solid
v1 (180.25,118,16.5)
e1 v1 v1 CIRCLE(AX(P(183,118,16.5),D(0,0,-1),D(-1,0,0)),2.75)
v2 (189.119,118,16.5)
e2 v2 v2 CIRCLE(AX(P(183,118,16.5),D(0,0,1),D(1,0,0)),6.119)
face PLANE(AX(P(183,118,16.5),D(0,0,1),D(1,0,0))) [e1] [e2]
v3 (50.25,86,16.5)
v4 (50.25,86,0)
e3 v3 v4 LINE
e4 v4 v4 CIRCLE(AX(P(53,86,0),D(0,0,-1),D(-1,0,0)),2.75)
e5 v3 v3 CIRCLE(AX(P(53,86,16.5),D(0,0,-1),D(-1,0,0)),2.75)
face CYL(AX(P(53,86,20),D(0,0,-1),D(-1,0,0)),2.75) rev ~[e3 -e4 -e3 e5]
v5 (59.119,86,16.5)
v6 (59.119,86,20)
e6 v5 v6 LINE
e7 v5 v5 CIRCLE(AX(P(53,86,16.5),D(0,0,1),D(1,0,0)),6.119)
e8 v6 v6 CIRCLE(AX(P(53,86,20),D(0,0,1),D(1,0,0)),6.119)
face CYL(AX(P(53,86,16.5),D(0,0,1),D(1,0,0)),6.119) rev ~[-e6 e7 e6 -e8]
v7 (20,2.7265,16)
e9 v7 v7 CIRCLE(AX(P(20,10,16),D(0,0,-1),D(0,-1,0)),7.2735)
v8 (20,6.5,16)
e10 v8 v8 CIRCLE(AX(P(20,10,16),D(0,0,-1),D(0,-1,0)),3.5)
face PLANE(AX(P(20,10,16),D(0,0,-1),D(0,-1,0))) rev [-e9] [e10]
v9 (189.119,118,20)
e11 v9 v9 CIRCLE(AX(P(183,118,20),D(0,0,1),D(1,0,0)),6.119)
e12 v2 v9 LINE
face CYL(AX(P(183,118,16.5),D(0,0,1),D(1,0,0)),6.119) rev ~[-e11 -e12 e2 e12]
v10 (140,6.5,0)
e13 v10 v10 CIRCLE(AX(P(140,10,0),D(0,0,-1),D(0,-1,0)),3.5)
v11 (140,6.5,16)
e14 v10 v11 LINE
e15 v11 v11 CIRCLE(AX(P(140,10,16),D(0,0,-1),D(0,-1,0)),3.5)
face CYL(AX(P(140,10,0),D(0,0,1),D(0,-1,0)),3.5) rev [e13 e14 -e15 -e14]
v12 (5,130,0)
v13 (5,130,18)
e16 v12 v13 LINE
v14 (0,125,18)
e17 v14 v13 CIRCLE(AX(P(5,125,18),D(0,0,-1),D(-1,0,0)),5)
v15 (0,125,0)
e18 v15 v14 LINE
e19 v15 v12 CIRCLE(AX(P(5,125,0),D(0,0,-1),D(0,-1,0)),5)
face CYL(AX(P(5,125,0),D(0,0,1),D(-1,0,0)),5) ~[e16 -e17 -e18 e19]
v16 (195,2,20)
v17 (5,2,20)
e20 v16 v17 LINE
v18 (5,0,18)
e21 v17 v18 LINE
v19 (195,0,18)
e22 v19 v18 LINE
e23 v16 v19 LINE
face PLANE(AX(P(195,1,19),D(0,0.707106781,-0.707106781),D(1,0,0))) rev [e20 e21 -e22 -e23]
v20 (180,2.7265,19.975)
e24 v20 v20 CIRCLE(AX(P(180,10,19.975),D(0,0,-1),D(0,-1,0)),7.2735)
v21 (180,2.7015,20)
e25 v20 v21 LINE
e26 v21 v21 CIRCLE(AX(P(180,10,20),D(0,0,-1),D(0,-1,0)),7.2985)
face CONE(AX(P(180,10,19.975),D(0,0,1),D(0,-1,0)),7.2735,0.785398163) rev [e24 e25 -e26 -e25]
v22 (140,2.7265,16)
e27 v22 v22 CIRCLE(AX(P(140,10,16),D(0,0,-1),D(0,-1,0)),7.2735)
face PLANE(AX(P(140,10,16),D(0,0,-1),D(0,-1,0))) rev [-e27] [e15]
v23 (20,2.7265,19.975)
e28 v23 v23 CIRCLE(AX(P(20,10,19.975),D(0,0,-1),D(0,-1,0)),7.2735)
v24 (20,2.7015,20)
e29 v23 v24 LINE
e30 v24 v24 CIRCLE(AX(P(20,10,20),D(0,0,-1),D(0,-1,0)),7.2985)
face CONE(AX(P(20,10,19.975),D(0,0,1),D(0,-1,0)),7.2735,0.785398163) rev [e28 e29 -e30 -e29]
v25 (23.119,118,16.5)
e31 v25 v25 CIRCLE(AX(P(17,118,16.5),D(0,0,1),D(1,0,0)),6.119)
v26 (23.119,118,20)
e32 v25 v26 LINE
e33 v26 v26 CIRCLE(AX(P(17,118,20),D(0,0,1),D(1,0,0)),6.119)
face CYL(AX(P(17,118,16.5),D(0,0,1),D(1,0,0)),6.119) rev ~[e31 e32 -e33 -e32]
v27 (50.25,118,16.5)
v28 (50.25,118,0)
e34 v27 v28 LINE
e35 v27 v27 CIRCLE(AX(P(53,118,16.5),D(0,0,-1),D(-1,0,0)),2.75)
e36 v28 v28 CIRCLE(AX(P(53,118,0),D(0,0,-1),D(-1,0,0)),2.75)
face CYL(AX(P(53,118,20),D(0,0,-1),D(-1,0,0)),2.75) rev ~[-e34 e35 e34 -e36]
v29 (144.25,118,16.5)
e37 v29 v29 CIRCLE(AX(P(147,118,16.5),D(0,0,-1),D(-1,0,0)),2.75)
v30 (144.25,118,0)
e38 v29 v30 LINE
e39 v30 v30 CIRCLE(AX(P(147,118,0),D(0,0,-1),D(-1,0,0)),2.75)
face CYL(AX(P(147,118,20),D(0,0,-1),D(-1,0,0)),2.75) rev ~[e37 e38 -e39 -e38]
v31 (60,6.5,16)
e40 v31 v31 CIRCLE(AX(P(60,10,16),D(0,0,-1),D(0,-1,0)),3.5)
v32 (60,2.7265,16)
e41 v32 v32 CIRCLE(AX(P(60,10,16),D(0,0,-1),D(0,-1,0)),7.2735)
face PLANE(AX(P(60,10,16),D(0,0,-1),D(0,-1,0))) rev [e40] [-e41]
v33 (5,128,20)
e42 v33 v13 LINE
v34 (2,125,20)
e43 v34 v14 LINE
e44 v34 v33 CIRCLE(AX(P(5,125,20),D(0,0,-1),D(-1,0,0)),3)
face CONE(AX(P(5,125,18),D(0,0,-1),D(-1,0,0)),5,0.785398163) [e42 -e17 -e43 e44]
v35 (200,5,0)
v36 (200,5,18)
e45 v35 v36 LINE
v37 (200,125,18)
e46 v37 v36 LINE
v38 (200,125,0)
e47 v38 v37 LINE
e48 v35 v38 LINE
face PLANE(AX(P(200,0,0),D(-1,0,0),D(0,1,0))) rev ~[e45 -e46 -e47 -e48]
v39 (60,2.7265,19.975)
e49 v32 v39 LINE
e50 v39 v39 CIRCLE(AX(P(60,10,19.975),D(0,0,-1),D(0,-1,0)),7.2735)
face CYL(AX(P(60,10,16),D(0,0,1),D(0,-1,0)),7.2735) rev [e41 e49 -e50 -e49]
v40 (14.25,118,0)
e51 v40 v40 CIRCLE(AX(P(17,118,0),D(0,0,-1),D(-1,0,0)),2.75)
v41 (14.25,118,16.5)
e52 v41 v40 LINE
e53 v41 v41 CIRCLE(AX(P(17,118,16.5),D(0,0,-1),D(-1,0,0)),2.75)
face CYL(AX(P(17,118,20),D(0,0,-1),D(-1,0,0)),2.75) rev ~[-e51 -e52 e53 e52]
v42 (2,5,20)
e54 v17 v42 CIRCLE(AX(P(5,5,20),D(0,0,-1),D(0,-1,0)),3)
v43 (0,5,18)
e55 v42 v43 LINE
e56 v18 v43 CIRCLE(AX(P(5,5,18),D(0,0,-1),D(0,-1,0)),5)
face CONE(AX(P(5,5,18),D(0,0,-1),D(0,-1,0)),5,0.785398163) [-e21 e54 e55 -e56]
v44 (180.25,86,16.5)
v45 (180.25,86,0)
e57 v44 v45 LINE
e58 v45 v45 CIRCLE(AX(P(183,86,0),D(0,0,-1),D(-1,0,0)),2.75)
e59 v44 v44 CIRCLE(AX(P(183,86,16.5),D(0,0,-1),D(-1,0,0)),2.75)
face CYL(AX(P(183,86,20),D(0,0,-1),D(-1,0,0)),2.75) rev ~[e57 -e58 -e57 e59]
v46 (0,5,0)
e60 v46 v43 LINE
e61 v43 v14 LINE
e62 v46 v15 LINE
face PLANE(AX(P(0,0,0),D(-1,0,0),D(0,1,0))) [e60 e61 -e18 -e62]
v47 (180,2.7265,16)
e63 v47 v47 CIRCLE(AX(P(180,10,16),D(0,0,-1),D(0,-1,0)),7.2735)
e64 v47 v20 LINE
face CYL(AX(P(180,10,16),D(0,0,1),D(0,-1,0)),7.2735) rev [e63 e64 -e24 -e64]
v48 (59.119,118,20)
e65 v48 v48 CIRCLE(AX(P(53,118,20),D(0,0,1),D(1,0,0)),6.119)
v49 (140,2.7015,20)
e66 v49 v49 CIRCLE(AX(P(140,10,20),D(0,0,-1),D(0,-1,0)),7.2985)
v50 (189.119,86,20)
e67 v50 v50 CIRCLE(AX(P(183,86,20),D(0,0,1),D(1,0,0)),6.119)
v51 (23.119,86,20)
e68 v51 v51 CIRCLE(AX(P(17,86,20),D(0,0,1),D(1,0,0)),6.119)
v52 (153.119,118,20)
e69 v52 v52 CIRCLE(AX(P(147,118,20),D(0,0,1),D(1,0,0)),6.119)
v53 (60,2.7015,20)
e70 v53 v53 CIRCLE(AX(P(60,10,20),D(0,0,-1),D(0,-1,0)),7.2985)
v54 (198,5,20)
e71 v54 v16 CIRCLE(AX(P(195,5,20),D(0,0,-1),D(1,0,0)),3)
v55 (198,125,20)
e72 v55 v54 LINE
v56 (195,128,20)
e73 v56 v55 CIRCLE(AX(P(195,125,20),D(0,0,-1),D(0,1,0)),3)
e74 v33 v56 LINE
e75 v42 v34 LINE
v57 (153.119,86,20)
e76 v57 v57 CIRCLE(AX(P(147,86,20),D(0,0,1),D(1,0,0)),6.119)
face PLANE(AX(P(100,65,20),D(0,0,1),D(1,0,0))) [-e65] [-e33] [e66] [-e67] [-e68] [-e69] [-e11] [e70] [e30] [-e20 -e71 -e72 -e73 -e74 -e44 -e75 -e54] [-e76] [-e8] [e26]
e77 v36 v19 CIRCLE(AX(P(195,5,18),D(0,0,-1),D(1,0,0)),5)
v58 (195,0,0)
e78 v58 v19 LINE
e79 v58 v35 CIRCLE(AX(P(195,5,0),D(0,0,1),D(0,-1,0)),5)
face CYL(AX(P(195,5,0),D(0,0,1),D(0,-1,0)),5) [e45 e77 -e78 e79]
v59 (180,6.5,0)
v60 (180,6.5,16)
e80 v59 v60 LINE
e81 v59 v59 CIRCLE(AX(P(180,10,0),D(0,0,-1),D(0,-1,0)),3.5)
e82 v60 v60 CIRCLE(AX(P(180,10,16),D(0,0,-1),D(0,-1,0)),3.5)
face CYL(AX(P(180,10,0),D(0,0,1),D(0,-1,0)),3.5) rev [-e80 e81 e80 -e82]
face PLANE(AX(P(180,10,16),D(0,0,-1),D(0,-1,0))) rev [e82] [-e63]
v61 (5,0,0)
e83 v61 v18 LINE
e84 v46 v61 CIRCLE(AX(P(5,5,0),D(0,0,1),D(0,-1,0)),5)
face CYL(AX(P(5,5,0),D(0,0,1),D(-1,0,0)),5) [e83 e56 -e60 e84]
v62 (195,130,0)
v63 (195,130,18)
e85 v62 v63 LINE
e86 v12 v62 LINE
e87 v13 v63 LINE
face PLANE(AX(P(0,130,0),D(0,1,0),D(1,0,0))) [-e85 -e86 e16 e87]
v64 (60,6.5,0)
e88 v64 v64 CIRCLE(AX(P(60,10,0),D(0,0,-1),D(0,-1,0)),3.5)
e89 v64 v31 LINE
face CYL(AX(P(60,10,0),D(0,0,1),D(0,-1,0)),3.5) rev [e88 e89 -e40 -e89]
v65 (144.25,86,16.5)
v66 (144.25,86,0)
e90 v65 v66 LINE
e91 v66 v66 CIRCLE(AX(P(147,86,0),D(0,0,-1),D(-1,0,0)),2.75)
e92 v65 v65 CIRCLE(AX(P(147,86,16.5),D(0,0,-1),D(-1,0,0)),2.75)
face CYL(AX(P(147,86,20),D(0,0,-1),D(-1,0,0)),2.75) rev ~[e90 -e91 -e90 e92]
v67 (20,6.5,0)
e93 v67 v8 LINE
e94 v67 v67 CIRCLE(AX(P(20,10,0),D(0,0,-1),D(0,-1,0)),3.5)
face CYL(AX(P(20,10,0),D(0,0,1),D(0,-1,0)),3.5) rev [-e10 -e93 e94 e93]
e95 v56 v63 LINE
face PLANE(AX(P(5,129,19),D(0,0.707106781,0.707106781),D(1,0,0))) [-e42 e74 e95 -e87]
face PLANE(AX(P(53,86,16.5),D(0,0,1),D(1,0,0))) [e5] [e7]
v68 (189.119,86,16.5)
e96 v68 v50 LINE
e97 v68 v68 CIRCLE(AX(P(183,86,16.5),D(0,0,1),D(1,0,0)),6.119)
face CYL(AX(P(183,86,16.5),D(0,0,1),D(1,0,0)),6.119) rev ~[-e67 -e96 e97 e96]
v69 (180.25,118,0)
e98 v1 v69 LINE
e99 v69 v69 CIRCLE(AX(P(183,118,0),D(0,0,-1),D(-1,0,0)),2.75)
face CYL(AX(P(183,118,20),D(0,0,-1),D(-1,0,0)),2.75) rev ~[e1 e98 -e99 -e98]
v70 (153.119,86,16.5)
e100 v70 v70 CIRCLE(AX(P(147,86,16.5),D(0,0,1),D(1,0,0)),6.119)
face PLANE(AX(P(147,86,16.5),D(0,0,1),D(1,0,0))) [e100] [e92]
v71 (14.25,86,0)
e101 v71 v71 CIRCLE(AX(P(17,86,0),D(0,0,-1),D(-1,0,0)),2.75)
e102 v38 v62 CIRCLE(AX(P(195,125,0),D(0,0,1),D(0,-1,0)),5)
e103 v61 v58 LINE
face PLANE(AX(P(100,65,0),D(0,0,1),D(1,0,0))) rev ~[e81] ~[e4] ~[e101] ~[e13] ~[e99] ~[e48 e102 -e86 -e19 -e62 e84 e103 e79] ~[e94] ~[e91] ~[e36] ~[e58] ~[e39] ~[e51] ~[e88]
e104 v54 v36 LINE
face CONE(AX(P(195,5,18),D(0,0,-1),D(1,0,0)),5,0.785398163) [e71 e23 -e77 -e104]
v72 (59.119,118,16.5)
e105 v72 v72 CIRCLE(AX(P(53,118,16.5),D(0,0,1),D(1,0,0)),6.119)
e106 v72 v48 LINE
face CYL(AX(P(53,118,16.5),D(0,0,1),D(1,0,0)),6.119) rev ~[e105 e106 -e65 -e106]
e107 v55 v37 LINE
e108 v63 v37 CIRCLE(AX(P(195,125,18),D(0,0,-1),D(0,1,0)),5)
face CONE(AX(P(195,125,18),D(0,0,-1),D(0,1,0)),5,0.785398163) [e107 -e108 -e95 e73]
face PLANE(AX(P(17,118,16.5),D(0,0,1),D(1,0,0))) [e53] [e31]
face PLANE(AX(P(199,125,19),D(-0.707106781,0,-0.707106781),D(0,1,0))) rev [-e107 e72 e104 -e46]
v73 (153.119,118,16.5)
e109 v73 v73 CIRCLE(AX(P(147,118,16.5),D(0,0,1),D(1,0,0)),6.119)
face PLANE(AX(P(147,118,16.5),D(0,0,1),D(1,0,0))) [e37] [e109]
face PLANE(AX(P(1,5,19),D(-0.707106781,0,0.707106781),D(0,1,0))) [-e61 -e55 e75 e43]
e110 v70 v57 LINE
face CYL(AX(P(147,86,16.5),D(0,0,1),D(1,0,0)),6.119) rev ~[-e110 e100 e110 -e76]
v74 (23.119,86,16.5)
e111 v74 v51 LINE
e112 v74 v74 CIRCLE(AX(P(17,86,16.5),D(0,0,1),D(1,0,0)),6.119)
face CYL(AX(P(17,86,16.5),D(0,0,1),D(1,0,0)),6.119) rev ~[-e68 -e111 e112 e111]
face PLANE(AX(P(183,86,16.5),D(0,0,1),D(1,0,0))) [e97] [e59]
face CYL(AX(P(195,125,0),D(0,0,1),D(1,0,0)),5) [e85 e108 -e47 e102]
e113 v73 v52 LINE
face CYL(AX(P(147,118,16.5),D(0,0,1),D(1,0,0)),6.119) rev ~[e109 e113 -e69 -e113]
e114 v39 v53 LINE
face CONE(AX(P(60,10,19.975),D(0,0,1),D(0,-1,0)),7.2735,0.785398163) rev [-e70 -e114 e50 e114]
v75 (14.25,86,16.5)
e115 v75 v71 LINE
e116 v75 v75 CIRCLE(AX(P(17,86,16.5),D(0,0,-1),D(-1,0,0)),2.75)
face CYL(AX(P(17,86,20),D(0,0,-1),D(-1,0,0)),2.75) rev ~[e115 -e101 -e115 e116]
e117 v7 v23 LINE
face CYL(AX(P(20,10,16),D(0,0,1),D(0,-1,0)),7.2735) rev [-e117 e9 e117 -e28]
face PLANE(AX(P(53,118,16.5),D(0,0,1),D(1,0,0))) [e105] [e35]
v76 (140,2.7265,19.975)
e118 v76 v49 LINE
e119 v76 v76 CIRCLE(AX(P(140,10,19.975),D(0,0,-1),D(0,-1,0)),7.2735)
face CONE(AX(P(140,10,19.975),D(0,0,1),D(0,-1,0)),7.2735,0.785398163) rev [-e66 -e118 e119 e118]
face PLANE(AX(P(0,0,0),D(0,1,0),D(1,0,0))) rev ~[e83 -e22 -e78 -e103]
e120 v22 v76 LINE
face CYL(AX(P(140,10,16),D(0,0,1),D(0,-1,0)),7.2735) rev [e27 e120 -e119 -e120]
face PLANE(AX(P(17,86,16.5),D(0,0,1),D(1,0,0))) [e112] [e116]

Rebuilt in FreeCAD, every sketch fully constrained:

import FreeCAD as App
import Part
import Sketcher
Q = App.Units.Quantity


def edges_at(feature, points):
    """Names of the edges that pass closest to the given points."""
    edges = feature.Shape.Edges
    near = lambda p: min(range(len(edges)), key=lambda i: edges[i].distToShape(Part.Vertex(*p))[0])
    return sorted({f"Edge{near(p) + 1}" for p in points})


def add_polygon(sketch, points):
    """Adds a closed chain of lines whose ends are joined by coincident constraints."""
    first, n = sketch.GeometryCount, len(points)
    for a, b in zip(points, points[1:] + points[:1]):
        sketch.addGeometry(Part.LineSegment(App.Vector(*a, 0), App.Vector(*b, 0)), False)
    for i in range(n):
        sketch.addConstraint(Sketcher.Constraint("Coincident", first + i, 2, first + (i + 1) % n, 1))

doc = App.newDocument("Part")
params = doc.addObject("Spreadsheet::Sheet", "Params")
for row, (alias, value) in enumerate([
    ("sketch1_width", "200 mm"),
    ("sketch1_height", "130 mm"),
    ("pad1_length", "20 mm"),
    ("fillet_radius", "5 mm"),
    ("sketch2_height", "20 mm"),
    ("sketch2_height2", "16 mm"),
    ("sketch2_width", "3.5 mm"),
    ("groove_angle", "360 deg"),
    ("linearpattern_pitch", "40 mm"),
    ("linearpattern2_pitch", "120 mm"),
    ("linearpattern3_pitch", "160 mm"),
    ("sketch3_diameter", "5.5 mm"),
    ("hole_diameter", "5.5 mm"),
    ("hole_cbore_diameter", "12.238 mm"),
    ("hole_cbore_depth", "3.5 mm"),
    ("chamfer_size", "2 mm"),
], start=1):
    params.set(f"A{row}", alias)
    params.set(f"B{row}", "=" + value)
    params.setAlias(f"B{row}", alias)

body = doc.addObject("PartDesign::Body", "Body")

# Sketch on XY plane
sketch1 = body.newObject("Sketcher::SketchObject", "Sketch")
sketch1.AttachmentSupport = (doc.getObject("XY_Plane"), [""])
sketch1.MapMode = "FlatFace"
add_polygon(sketch1, [(0, 130), (0, 0), (200, 0), (200, 130)])  # lines 0-3
sketch1.addConstraint([
    Sketcher.Constraint("Vertical", 0),
    Sketcher.Constraint("Horizontal", 1),
    Sketcher.Constraint("Vertical", 2),
    Sketcher.Constraint("Horizontal", 3),
    Sketcher.Constraint("Coincident", 0, 2, -1, 1),
    Sketcher.Constraint("DistanceX", 1, 1, 1, 2, Q("200 mm")),
    Sketcher.Constraint("DistanceY", 0, 2, 0, 1, Q("130 mm")),
])
sketch1.setExpression("Constraints[9]", "Params.sketch1_width")
sketch1.setExpression("Constraints[10]", "Params.sketch1_height")
pad1 = body.newObject("PartDesign::Pad", "Pad")
pad1.Profile = sketch1
pad1.setExpression("Length", "Params.pad1_length")
doc.recompute()

fillet = body.newObject("PartDesign::Fillet", "Fillet")
fillet.Base = (pad1, edges_at(pad1, [
    (0, 130, 10),
    (200, 130, 10),
    (200, 0, 10),
    (0, 0, 10),
]))
fillet.setExpression("Radius", "Params.fillet_radius")

# Sketch on YZ plane
sketch2 = body.newObject("Sketcher::SketchObject", "Sketch001")
sketch2.AttachmentSupport = (doc.getObject("YZ_Plane"), [""])
sketch2.MapMode = "FlatFace"
sketch2.AttachmentOffset = App.Placement(App.Vector(0, 0, 20), App.Rotation())
add_polygon(sketch2, [(10, 0), (10, 20), (2.701, 20), (2.727, 19.975), (2.727, 16), (6.5, 16), (6.5, 0)])  # lines 0-6
sketch2.addGeometry(Part.LineSegment(App.Vector(10, 20, 0), App.Vector(10, 0, 0)), True)  # axis
sketch2.addConstraint([
    Sketcher.Constraint("Vertical", 0),
    Sketcher.Constraint("Horizontal", 1),
    Sketcher.Constraint("Vertical", 3),
    Sketcher.Constraint("Horizontal", 4),
    Sketcher.Constraint("Vertical", 5),
    Sketcher.Constraint("Horizontal", 6),
    Sketcher.Constraint("Vertical", 7),
    Sketcher.Constraint("Coincident", 7, 1, 0, 2),
    Sketcher.Constraint("PointOnObject", 5, 2, -1),
    Sketcher.Constraint("PointOnObject", 7, 2, -1),
    Sketcher.Constraint("DistanceY", 0, 1, 0, 2, Q("20 mm")),
    Sketcher.Constraint("DistanceY", 5, 2, 5, 1, Q("16 mm")),
    Sketcher.Constraint("Angle", 2, Q("-45 deg")),
    Sketcher.Constraint("DistanceX", 6, 1, 6, 2, Q("3.5 mm")),
    Sketcher.Constraint("DistanceX", -1, 1, 0, 2, Q("10 mm")),
    Sketcher.Constraint("DistanceY", 3, 2, 3, 1, Q("3.975 mm")),
    Sketcher.Constraint("DistanceX", 1, 2, 1, 1, Q("7.2985 mm")),
])
sketch2.setExpression("Constraints[17]", "Params.sketch2_height")
sketch2.setExpression("Constraints[18]", "Params.sketch2_height2")
sketch2.setExpression("Constraints[20]", "Params.sketch2_width")
groove = body.newObject("PartDesign::Groove", "Groove")
groove.Profile = sketch2
groove.ReferenceAxis = (sketch2, ["Axis0"])
groove.setExpression("Angle", "Params.groove_angle")
doc.recompute()

linearpattern = body.newObject("PartDesign::LinearPattern", "LinearPattern")
linearpattern.Originals = [groove]
linearpattern.Direction = (doc.getObject("X_Axis"), [""])
linearpattern.Mode = "offset"
linearpattern.setExpression("Offset", "Params.linearpattern_pitch")
linearpattern.Occurrences = 2
body.Tip = linearpattern
doc.recompute()

linearpattern2 = body.newObject("PartDesign::LinearPattern", "LinearPattern001")
linearpattern2.Originals = [groove]
linearpattern2.Direction = (doc.getObject("X_Axis"), [""])
linearpattern2.Mode = "offset"
linearpattern2.setExpression("Offset", "Params.linearpattern2_pitch")
linearpattern2.Occurrences = 2
body.Tip = linearpattern2
doc.recompute()

linearpattern3 = body.newObject("PartDesign::LinearPattern", "LinearPattern002")
linearpattern3.Originals = [groove]
linearpattern3.Direction = (doc.getObject("X_Axis"), [""])
linearpattern3.Mode = "offset"
linearpattern3.setExpression("Offset", "Params.linearpattern3_pitch")
linearpattern3.Occurrences = 2
body.Tip = linearpattern3

# Sketch on XY plane
sketch3 = body.newObject("Sketcher::SketchObject", "Sketch002")
sketch3.AttachmentSupport = (doc.getObject("XY_Plane"), [""])
sketch3.MapMode = "FlatFace"
sketch3.AttachmentOffset = App.Placement(App.Vector(0, 0, 20), App.Rotation())
sketch3.addGeometry([
    Part.Circle(App.Vector(17, 118, 0), App.Vector(0, 0, 1), 2.8),  # 0
    Part.Circle(App.Vector(53, 118, 0), App.Vector(0, 0, 1), 2.8),  # 1
    Part.Circle(App.Vector(53, 86, 0), App.Vector(0, 0, 1), 2.8),  # 2
    Part.Circle(App.Vector(17, 86, 0), App.Vector(0, 0, 1), 2.8),  # 3
    Part.Circle(App.Vector(183, 118, 0), App.Vector(0, 0, 1), 2.8),  # 4
    Part.Circle(App.Vector(183, 86, 0), App.Vector(0, 0, 1), 2.8),  # 5
    Part.Circle(App.Vector(147, 118, 0), App.Vector(0, 0, 1), 2.8),  # 6
    Part.Circle(App.Vector(147, 86, 0), App.Vector(0, 0, 1), 2.8),  # 7
], False)
sketch3.addConstraint([
    Sketcher.Constraint("Equal", 0, 1),
    Sketcher.Constraint("Equal", 1, 2),
    Sketcher.Constraint("Equal", 2, 3),
    Sketcher.Constraint("Equal", 3, 4),
    Sketcher.Constraint("Equal", 4, 5),
    Sketcher.Constraint("Equal", 5, 6),
    Sketcher.Constraint("Equal", 6, 7),
    Sketcher.Constraint("Horizontal", 0, 3, 1, 3),
    Sketcher.Constraint("Horizontal", 2, 3, 3, 3),
    Sketcher.Constraint("Horizontal", 1, 3, 4, 3),
    Sketcher.Constraint("Horizontal", 3, 3, 5, 3),
    Sketcher.Constraint("Horizontal", 4, 3, 6, 3),
    Sketcher.Constraint("Horizontal", 5, 3, 7, 3),
    Sketcher.Constraint("Vertical", 1, 3, 2, 3),
    Sketcher.Constraint("Vertical", 0, 3, 3, 3),
    Sketcher.Constraint("Vertical", 4, 3, 5, 3),
    Sketcher.Constraint("Vertical", 6, 3, 7, 3),
    Sketcher.Constraint("Diameter", 0, Q("5.5 mm")),
    Sketcher.Constraint("DistanceX", -1, 1, 0, 3, Q("17 mm")),
    Sketcher.Constraint("DistanceY", -1, 1, 0, 3, Q("118 mm")),
    Sketcher.Constraint("DistanceX", -1, 1, 1, 3, Q("53 mm")),
    Sketcher.Constraint("DistanceY", -1, 1, 2, 3, Q("86 mm")),
    Sketcher.Constraint("DistanceX", -1, 1, 4, 3, Q("183 mm")),
    Sketcher.Constraint("DistanceX", -1, 1, 6, 3, Q("147 mm")),
])
sketch3.setExpression("Constraints[17]", "Params.sketch3_diameter")
doc.recompute()
hole = body.newObject("PartDesign::Hole", "Hole")
hole.Profile = sketch3
hole.ThreadType = "None"
hole.setExpression("Diameter", "Params.hole_diameter")
hole.DepthType = "ThroughAll"
hole.HoleCutType = "Counterbore"
hole.setExpression("HoleCutDiameter", "Params.hole_cbore_diameter")
hole.setExpression("HoleCutDepth", "Params.hole_cbore_depth")
doc.recompute()

chamfer = body.newObject("PartDesign::Chamfer", "Chamfer")
chamfer.Base = (hole, edges_at(hole, [
    (100, 130, 20),
    (200, 65, 20),
    (0, 65, 20),
    (100, 0, 20),
    (1.464, 128.536, 20),
    (1.464, 1.464, 20),
    (198.536, 1.464, 20),
    (198.536, 128.536, 20),
]))
chamfer.setExpression("Size", "Params.chamfer_size")

doc.recompute()
